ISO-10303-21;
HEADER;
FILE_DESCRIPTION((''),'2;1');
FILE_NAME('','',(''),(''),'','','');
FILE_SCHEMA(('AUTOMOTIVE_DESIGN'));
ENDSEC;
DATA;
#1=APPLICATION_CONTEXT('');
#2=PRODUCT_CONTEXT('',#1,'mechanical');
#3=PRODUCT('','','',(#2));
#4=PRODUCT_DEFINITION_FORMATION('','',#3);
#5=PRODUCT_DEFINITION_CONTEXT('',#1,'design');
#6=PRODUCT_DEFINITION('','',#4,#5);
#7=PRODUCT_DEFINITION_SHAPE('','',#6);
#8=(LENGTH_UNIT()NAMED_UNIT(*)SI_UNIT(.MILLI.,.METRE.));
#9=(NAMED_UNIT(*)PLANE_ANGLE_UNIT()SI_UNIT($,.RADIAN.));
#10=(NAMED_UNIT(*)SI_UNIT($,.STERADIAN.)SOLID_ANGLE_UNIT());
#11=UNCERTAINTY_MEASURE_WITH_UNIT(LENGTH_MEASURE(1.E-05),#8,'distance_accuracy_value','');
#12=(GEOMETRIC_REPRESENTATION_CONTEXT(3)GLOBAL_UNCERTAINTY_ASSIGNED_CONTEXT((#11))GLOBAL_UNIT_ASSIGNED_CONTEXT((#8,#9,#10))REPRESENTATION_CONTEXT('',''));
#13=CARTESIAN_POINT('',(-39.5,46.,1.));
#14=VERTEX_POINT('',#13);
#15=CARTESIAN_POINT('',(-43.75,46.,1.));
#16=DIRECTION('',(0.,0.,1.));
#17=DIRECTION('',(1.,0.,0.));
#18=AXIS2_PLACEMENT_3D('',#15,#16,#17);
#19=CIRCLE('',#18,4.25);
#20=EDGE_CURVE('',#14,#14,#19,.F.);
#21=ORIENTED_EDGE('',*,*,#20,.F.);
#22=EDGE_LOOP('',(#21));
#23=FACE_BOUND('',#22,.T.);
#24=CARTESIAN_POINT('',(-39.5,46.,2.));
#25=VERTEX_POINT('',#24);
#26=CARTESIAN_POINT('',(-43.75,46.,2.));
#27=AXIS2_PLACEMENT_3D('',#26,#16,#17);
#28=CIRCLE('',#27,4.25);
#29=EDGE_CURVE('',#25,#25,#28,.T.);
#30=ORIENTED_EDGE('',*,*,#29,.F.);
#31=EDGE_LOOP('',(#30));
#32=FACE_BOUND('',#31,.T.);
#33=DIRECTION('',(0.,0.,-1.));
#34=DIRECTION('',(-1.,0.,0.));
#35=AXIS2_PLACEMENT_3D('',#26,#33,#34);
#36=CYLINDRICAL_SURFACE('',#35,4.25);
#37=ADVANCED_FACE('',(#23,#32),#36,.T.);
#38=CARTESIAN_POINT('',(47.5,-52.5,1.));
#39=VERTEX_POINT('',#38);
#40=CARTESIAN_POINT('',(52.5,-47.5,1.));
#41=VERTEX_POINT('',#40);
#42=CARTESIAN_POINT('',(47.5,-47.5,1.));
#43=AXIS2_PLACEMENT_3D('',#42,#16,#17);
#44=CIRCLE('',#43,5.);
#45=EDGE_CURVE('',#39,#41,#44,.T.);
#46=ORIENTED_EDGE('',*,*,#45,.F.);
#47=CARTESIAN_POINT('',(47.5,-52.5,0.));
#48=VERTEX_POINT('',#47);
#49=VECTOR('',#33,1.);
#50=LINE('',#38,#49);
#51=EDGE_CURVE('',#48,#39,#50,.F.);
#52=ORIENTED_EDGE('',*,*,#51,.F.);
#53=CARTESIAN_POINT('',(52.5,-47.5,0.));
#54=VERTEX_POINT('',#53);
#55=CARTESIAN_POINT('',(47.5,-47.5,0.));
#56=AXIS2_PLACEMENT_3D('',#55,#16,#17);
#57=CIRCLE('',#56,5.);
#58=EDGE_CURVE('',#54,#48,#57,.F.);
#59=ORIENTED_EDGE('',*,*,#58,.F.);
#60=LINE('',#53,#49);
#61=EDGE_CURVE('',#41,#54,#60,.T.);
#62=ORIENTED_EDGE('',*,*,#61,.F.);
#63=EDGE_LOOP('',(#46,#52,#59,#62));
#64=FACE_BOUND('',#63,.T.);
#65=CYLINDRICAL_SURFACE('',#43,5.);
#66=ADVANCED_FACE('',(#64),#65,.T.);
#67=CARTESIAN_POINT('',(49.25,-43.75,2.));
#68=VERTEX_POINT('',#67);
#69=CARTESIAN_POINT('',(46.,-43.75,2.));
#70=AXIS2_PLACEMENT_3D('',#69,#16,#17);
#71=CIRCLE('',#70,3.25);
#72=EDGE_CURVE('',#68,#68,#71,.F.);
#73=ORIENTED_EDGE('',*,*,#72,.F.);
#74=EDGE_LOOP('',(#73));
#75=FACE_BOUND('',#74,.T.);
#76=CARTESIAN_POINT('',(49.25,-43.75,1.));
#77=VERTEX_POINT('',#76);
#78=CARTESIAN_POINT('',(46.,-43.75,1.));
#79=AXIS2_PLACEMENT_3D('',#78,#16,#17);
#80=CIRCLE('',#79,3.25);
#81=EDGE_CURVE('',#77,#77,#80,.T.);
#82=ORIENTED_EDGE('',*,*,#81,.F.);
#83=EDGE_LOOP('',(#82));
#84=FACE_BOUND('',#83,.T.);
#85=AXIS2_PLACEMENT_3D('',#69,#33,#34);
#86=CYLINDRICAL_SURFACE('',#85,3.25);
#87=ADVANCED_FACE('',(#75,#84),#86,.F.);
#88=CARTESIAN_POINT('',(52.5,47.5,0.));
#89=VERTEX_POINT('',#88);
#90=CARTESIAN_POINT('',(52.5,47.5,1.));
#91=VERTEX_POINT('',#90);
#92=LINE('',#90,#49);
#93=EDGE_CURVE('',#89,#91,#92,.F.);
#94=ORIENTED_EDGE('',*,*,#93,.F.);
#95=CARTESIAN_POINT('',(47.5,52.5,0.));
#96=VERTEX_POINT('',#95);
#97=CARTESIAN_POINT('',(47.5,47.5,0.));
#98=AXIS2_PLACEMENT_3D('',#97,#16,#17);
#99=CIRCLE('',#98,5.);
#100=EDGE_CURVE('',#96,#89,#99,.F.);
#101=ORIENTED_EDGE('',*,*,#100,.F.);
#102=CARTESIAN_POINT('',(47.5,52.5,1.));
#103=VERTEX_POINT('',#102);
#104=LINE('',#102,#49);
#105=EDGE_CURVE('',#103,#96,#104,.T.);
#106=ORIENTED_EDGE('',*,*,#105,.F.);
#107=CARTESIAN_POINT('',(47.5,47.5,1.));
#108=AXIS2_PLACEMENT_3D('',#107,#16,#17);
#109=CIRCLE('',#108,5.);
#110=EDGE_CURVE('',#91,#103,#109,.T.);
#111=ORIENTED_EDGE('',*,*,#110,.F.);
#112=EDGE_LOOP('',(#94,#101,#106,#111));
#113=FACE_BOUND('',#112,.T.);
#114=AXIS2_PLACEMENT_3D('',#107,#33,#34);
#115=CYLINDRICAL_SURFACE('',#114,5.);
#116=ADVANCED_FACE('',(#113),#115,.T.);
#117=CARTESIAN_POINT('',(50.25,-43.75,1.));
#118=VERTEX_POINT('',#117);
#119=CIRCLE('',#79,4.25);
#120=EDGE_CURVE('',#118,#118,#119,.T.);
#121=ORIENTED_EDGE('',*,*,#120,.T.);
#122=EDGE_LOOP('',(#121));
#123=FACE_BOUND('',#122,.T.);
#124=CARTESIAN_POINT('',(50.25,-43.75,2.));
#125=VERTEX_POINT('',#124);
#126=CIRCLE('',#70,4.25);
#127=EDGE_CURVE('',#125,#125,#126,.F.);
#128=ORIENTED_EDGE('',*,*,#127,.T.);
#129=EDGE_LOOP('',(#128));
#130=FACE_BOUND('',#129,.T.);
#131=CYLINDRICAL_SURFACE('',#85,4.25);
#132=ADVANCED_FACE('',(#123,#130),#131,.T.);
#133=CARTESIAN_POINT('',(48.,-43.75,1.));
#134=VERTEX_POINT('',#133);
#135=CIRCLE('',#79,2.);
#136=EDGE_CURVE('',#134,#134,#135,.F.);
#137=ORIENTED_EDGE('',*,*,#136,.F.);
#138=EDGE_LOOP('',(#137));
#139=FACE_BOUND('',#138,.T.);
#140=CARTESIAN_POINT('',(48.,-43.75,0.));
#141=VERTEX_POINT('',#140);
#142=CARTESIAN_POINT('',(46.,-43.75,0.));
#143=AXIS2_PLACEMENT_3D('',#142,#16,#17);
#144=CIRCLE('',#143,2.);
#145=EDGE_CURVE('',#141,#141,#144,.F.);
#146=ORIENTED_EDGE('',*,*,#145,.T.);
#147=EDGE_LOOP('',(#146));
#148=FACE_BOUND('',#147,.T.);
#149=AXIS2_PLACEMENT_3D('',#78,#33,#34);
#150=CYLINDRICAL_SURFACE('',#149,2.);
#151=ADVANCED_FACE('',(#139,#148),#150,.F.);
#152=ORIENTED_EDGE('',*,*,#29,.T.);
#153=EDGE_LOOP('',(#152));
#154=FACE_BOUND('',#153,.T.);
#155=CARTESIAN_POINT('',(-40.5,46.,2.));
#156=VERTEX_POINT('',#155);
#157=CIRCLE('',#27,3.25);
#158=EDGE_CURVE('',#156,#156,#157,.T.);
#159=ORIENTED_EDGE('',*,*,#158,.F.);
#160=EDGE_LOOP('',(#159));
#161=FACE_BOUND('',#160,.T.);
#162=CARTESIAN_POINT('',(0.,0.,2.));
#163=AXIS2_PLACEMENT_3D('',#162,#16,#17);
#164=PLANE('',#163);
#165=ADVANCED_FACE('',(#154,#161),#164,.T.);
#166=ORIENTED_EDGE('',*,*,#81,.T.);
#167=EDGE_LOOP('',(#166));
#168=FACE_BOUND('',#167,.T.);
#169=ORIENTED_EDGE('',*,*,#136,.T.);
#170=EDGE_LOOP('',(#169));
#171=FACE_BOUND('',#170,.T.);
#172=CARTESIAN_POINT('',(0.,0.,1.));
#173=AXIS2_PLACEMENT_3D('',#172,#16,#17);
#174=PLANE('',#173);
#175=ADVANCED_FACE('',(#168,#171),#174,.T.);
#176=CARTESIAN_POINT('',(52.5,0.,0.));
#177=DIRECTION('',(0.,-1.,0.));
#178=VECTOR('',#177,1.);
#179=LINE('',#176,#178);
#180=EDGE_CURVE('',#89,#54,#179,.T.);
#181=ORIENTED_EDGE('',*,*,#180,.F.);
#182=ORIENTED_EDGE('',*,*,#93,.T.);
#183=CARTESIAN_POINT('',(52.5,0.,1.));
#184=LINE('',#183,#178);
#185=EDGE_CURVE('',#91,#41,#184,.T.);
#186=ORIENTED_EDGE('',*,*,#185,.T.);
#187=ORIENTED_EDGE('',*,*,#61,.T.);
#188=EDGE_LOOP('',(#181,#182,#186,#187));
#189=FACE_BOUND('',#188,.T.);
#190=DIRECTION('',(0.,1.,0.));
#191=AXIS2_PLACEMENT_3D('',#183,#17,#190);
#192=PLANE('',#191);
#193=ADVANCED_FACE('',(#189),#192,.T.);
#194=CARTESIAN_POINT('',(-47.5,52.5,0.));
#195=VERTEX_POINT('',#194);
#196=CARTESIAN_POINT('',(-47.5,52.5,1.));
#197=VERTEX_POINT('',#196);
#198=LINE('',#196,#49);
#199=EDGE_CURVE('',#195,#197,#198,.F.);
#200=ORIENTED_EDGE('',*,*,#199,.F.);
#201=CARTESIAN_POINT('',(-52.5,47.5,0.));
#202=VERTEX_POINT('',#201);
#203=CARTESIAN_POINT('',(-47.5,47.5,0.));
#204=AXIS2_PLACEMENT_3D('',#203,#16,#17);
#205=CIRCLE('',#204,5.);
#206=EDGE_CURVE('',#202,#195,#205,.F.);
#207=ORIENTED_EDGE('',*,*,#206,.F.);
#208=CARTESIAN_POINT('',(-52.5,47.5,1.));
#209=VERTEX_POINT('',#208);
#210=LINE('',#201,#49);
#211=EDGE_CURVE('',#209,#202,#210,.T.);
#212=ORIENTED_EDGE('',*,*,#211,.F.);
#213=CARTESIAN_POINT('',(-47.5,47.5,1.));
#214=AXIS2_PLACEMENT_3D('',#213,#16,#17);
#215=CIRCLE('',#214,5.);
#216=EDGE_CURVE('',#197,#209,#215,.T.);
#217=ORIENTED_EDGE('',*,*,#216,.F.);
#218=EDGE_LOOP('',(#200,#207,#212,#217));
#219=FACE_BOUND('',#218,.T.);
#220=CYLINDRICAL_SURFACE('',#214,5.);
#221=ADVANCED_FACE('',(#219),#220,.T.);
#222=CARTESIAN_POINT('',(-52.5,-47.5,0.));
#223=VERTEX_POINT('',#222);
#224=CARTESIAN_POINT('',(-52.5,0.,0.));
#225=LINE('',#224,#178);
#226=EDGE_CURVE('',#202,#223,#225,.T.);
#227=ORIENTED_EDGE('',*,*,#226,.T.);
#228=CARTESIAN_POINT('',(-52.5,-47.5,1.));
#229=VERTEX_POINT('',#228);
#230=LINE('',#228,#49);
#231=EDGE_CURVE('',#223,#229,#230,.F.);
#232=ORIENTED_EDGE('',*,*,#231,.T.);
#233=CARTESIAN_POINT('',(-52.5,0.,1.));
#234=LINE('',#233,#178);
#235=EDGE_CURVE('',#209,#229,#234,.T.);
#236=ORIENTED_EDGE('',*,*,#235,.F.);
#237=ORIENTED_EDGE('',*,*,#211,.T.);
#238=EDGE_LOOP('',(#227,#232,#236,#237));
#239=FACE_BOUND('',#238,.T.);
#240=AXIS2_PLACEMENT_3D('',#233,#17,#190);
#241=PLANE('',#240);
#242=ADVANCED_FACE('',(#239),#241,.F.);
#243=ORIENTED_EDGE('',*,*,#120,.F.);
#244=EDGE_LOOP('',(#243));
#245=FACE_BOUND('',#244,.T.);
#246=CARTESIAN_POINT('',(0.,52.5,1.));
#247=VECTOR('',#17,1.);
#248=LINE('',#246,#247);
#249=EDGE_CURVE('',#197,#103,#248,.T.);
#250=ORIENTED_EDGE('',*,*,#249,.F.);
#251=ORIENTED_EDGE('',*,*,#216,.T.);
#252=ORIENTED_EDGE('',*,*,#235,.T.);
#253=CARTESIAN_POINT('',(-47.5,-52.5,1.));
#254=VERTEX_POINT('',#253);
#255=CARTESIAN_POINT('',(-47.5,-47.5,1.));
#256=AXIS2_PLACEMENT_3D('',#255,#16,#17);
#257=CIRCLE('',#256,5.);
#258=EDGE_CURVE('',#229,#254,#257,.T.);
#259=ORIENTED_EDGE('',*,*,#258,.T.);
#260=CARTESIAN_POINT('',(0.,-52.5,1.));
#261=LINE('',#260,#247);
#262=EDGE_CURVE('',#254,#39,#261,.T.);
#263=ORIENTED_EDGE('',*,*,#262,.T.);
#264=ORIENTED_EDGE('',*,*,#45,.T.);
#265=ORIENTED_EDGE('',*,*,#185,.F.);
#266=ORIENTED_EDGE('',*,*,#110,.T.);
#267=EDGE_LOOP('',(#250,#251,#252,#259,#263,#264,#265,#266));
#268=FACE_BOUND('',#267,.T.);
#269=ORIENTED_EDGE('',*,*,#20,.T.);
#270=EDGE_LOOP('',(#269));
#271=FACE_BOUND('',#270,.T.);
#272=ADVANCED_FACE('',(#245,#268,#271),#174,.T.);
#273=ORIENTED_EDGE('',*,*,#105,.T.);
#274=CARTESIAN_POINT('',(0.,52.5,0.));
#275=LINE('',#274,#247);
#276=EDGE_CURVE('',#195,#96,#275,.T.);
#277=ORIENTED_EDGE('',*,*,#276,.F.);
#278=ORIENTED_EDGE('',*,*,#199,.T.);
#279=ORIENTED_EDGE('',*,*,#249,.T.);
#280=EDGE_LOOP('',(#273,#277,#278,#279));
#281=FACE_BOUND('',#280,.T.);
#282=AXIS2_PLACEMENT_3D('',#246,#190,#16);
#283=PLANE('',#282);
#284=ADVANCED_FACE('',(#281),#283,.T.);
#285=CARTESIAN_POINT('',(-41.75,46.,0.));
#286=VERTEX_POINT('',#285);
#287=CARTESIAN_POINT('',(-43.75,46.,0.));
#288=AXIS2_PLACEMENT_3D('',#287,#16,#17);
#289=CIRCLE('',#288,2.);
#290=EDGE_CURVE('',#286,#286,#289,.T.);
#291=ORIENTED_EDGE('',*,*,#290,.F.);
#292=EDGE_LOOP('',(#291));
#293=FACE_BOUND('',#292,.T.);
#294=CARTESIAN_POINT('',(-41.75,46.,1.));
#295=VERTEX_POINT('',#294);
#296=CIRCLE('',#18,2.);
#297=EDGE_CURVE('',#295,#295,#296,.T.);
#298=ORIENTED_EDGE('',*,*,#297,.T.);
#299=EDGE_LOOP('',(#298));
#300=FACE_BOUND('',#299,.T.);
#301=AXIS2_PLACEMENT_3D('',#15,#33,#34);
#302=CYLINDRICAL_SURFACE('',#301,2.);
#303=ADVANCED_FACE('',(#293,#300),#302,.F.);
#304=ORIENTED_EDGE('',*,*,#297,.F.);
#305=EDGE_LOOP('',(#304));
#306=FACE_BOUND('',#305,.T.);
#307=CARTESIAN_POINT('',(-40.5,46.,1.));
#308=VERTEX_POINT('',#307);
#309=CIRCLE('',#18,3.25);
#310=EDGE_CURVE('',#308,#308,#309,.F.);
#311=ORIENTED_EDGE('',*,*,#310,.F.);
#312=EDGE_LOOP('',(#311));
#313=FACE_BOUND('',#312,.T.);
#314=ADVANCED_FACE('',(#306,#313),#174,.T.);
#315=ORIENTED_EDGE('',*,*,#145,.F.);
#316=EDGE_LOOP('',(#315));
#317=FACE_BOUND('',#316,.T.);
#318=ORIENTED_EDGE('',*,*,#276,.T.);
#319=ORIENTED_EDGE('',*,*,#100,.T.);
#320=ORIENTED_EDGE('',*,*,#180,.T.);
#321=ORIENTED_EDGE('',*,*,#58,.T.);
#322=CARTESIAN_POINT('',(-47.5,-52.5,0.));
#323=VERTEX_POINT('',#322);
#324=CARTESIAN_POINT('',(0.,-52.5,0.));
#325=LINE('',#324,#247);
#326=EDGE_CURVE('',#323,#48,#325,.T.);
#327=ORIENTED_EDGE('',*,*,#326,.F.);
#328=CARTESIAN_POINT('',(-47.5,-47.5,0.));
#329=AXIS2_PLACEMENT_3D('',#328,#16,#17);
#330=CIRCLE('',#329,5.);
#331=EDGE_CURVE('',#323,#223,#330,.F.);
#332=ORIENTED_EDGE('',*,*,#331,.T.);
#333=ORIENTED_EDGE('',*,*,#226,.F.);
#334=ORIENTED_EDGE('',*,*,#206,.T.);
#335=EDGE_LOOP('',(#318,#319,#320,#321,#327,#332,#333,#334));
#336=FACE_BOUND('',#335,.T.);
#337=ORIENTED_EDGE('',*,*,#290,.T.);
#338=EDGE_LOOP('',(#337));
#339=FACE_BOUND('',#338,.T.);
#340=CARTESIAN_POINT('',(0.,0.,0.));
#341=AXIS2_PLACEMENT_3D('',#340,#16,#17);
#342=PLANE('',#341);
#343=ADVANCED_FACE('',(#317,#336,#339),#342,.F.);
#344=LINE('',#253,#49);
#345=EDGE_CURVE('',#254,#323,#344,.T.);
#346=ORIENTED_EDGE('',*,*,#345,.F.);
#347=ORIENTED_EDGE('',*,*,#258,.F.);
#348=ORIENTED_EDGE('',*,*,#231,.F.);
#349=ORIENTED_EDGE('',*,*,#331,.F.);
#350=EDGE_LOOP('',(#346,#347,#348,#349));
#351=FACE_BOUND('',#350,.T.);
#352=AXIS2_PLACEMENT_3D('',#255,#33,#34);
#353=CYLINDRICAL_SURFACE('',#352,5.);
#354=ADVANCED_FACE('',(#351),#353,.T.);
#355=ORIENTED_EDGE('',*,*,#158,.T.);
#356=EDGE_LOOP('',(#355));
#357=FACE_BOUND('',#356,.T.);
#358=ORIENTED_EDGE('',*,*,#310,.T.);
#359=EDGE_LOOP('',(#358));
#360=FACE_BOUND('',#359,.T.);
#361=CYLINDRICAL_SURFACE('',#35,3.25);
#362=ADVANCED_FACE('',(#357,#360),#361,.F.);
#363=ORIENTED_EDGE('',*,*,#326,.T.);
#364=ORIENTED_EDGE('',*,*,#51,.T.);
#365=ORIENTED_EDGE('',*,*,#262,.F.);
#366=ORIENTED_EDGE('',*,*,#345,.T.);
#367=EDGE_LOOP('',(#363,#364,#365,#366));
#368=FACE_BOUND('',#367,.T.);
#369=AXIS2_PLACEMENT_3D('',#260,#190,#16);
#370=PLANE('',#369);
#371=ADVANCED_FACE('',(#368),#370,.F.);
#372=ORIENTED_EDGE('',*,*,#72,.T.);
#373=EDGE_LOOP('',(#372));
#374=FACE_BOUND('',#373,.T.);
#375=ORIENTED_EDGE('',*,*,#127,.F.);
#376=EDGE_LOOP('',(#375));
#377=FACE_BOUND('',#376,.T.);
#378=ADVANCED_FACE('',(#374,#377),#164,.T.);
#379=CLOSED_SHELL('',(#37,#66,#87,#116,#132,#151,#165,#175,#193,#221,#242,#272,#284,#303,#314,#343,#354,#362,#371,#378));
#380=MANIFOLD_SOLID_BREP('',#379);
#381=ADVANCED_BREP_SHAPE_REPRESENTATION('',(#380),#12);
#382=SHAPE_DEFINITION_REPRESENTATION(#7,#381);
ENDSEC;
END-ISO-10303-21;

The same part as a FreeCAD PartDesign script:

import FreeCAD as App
import Part
import Sketcher


def edges_at(feature, points):
    """Names of the edges that pass closest to the given points."""
    edges = feature.Shape.Edges
    near = lambda p: min(range(len(edges)), key=lambda i: edges[i].distToShape(Part.Vertex(*p))[0])
    return sorted({f"Edge{near(p) + 1}" for p in points})


def add_polygon(sketch, points):
    """Adds a closed chain of lines whose ends are joined by coincident constraints."""
    first, n = sketch.GeometryCount, len(points)
    for a, b in zip(points, points[1:] + points[:1]):
        sketch.addGeometry(Part.LineSegment(App.Vector(*a, 0), App.Vector(*b, 0)), False)
    for i in range(n):
        sketch.addConstraint(Sketcher.Constraint("Coincident", first + i, 2, first + (i + 1) % n, 1))

doc = App.newDocument("Part")
params = doc.addObject("Spreadsheet::Sheet", "Params")
for row, (alias, value) in enumerate([
    ("sketch1_diameter", "4 mm"),
    ("sketch1_width", "105 mm"),
    ("pad1_length", "1 mm"),
    ("sketch2_diameter", "8.5 mm"),
    ("sketch2_diameter2", "6.5 mm"),
    ("pad2_length", "2 mm"),
    ("fillet_radius", "5 mm"),
], start=1):
    params.set(f"A{row}", alias)
    params.set(f"B{row}", "=" + value)
    params.setAlias(f"B{row}", alias)

body = doc.addObject("PartDesign::Body", "Body")

# Sketch on XY plane
sketch1 = body.newObject("Sketcher::SketchObject", "Sketch")
sketch1.AttachmentSupport = (doc.getObject("XY_Plane"), [""])
sketch1.MapMode = "FlatFace"
add_polygon(sketch1, [(-52.5, 52.5), (-52.5, -52.5), (52.5, -52.5), (52.5, 52.5)])  # lines 0-3
sketch1.addGeometry(Part.Circle(App.Vector(46, -43.8, 0), App.Vector(0, 0, 1), 2), False)  # 4
sketch1.addGeometry(Part.Circle(App.Vector(-43.8, 46, 0), App.Vector(0, 0, 1), 2), False)  # 5
sketch1.addConstraint([
    Sketcher.Constraint("Vertical", 0),
    Sketcher.Constraint("Horizontal", 1),
    Sketcher.Constraint("Vertical", 2),
    Sketcher.Constraint("Horizontal", 3),
    Sketcher.Constraint("Equal", 4, 5),
    Sketcher.Constraint("Symmetric", 0, 2, 2, 2, -1, 1),
    Sketcher.Constraint("Equal", 3, 0),
    Sketcher.Constraint("Diameter", 4, 4.0),
    Sketcher.Constraint("DistanceX", 1, 1, 1, 2, 105.0),
    Sketcher.Constraint("DistanceX", -1, 1, 4, 3, 46.0),
    Sketcher.Constraint("DistanceY", -1, 1, 5, 3, 46.0),
    Sketcher.Constraint("DistanceY", 4, 3, -1, 1, 43.75),
    Sketcher.Constraint("DistanceX", 5, 3, -1, 1, 43.75),
])
sketch1.setExpression("Constraints[11]", "Params.sketch1_diameter")
sketch1.setExpression("Constraints[12]", "Params.sketch1_width")
pad1 = body.newObject("PartDesign::Pad", "Pad")
pad1.Profile = sketch1
pad1.setExpression("Length", "Params.pad1_length")

# Sketch on XY plane
sketch2 = body.newObject("Sketcher::SketchObject", "Sketch001")
sketch2.AttachmentSupport = (doc.getObject("XY_Plane"), [""])
sketch2.MapMode = "FlatFace"
sketch2.addGeometry([
    Part.Circle(App.Vector(-43.8, 46, 0), App.Vector(0, 0, 1), 4.2),
    Part.Circle(App.Vector(-43.8, 46, 0), App.Vector(0, 0, 1), 3.2),
    Part.Circle(App.Vector(46, -43.8, 0), App.Vector(0, 0, 1), 4.2),
    Part.Circle(App.Vector(46, -43.8, 0), App.Vector(0, 0, 1), 3.2),
], False)
sketch2.addConstraint([
    Sketcher.Constraint("Coincident", 1, 3, 0, 3),
    Sketcher.Constraint("Coincident", 3, 3, 2, 3),
    Sketcher.Constraint("Equal", 0, 2),
    Sketcher.Constraint("Equal", 1, 3),
    Sketcher.Constraint("Diameter", 0, 8.5),
    Sketcher.Constraint("Diameter", 1, 6.5),
    Sketcher.Constraint("DistanceY", -1, 1, 0, 3, 46.0),
    Sketcher.Constraint("DistanceX", -1, 1, 2, 3, 46.0),
    Sketcher.Constraint("DistanceX", 0, 3, -1, 1, 43.75),
    Sketcher.Constraint("DistanceY", 2, 3, -1, 1, 43.75),
])
sketch2.setExpression("Constraints[4]", "Params.sketch2_diameter")
sketch2.setExpression("Constraints[5]", "Params.sketch2_diameter2")
pad2 = body.newObject("PartDesign::Pad", "Pad001")
pad2.Profile = sketch2
pad2.setExpression("Length", "Params.pad2_length")
doc.recompute()

fillet = body.newObject("PartDesign::Fillet", "Fillet")
fillet.Base = (pad2, edges_at(pad2, [
    (52.5, -52.5, 0.5),
    (-52.5, -52.5, 0.5),
    (-52.5, 52.5, 0.5),
    (52.5, 52.5, 0.5),
]))
fillet.setExpression("Radius", "Params.fillet_radius")

doc.recompute()
